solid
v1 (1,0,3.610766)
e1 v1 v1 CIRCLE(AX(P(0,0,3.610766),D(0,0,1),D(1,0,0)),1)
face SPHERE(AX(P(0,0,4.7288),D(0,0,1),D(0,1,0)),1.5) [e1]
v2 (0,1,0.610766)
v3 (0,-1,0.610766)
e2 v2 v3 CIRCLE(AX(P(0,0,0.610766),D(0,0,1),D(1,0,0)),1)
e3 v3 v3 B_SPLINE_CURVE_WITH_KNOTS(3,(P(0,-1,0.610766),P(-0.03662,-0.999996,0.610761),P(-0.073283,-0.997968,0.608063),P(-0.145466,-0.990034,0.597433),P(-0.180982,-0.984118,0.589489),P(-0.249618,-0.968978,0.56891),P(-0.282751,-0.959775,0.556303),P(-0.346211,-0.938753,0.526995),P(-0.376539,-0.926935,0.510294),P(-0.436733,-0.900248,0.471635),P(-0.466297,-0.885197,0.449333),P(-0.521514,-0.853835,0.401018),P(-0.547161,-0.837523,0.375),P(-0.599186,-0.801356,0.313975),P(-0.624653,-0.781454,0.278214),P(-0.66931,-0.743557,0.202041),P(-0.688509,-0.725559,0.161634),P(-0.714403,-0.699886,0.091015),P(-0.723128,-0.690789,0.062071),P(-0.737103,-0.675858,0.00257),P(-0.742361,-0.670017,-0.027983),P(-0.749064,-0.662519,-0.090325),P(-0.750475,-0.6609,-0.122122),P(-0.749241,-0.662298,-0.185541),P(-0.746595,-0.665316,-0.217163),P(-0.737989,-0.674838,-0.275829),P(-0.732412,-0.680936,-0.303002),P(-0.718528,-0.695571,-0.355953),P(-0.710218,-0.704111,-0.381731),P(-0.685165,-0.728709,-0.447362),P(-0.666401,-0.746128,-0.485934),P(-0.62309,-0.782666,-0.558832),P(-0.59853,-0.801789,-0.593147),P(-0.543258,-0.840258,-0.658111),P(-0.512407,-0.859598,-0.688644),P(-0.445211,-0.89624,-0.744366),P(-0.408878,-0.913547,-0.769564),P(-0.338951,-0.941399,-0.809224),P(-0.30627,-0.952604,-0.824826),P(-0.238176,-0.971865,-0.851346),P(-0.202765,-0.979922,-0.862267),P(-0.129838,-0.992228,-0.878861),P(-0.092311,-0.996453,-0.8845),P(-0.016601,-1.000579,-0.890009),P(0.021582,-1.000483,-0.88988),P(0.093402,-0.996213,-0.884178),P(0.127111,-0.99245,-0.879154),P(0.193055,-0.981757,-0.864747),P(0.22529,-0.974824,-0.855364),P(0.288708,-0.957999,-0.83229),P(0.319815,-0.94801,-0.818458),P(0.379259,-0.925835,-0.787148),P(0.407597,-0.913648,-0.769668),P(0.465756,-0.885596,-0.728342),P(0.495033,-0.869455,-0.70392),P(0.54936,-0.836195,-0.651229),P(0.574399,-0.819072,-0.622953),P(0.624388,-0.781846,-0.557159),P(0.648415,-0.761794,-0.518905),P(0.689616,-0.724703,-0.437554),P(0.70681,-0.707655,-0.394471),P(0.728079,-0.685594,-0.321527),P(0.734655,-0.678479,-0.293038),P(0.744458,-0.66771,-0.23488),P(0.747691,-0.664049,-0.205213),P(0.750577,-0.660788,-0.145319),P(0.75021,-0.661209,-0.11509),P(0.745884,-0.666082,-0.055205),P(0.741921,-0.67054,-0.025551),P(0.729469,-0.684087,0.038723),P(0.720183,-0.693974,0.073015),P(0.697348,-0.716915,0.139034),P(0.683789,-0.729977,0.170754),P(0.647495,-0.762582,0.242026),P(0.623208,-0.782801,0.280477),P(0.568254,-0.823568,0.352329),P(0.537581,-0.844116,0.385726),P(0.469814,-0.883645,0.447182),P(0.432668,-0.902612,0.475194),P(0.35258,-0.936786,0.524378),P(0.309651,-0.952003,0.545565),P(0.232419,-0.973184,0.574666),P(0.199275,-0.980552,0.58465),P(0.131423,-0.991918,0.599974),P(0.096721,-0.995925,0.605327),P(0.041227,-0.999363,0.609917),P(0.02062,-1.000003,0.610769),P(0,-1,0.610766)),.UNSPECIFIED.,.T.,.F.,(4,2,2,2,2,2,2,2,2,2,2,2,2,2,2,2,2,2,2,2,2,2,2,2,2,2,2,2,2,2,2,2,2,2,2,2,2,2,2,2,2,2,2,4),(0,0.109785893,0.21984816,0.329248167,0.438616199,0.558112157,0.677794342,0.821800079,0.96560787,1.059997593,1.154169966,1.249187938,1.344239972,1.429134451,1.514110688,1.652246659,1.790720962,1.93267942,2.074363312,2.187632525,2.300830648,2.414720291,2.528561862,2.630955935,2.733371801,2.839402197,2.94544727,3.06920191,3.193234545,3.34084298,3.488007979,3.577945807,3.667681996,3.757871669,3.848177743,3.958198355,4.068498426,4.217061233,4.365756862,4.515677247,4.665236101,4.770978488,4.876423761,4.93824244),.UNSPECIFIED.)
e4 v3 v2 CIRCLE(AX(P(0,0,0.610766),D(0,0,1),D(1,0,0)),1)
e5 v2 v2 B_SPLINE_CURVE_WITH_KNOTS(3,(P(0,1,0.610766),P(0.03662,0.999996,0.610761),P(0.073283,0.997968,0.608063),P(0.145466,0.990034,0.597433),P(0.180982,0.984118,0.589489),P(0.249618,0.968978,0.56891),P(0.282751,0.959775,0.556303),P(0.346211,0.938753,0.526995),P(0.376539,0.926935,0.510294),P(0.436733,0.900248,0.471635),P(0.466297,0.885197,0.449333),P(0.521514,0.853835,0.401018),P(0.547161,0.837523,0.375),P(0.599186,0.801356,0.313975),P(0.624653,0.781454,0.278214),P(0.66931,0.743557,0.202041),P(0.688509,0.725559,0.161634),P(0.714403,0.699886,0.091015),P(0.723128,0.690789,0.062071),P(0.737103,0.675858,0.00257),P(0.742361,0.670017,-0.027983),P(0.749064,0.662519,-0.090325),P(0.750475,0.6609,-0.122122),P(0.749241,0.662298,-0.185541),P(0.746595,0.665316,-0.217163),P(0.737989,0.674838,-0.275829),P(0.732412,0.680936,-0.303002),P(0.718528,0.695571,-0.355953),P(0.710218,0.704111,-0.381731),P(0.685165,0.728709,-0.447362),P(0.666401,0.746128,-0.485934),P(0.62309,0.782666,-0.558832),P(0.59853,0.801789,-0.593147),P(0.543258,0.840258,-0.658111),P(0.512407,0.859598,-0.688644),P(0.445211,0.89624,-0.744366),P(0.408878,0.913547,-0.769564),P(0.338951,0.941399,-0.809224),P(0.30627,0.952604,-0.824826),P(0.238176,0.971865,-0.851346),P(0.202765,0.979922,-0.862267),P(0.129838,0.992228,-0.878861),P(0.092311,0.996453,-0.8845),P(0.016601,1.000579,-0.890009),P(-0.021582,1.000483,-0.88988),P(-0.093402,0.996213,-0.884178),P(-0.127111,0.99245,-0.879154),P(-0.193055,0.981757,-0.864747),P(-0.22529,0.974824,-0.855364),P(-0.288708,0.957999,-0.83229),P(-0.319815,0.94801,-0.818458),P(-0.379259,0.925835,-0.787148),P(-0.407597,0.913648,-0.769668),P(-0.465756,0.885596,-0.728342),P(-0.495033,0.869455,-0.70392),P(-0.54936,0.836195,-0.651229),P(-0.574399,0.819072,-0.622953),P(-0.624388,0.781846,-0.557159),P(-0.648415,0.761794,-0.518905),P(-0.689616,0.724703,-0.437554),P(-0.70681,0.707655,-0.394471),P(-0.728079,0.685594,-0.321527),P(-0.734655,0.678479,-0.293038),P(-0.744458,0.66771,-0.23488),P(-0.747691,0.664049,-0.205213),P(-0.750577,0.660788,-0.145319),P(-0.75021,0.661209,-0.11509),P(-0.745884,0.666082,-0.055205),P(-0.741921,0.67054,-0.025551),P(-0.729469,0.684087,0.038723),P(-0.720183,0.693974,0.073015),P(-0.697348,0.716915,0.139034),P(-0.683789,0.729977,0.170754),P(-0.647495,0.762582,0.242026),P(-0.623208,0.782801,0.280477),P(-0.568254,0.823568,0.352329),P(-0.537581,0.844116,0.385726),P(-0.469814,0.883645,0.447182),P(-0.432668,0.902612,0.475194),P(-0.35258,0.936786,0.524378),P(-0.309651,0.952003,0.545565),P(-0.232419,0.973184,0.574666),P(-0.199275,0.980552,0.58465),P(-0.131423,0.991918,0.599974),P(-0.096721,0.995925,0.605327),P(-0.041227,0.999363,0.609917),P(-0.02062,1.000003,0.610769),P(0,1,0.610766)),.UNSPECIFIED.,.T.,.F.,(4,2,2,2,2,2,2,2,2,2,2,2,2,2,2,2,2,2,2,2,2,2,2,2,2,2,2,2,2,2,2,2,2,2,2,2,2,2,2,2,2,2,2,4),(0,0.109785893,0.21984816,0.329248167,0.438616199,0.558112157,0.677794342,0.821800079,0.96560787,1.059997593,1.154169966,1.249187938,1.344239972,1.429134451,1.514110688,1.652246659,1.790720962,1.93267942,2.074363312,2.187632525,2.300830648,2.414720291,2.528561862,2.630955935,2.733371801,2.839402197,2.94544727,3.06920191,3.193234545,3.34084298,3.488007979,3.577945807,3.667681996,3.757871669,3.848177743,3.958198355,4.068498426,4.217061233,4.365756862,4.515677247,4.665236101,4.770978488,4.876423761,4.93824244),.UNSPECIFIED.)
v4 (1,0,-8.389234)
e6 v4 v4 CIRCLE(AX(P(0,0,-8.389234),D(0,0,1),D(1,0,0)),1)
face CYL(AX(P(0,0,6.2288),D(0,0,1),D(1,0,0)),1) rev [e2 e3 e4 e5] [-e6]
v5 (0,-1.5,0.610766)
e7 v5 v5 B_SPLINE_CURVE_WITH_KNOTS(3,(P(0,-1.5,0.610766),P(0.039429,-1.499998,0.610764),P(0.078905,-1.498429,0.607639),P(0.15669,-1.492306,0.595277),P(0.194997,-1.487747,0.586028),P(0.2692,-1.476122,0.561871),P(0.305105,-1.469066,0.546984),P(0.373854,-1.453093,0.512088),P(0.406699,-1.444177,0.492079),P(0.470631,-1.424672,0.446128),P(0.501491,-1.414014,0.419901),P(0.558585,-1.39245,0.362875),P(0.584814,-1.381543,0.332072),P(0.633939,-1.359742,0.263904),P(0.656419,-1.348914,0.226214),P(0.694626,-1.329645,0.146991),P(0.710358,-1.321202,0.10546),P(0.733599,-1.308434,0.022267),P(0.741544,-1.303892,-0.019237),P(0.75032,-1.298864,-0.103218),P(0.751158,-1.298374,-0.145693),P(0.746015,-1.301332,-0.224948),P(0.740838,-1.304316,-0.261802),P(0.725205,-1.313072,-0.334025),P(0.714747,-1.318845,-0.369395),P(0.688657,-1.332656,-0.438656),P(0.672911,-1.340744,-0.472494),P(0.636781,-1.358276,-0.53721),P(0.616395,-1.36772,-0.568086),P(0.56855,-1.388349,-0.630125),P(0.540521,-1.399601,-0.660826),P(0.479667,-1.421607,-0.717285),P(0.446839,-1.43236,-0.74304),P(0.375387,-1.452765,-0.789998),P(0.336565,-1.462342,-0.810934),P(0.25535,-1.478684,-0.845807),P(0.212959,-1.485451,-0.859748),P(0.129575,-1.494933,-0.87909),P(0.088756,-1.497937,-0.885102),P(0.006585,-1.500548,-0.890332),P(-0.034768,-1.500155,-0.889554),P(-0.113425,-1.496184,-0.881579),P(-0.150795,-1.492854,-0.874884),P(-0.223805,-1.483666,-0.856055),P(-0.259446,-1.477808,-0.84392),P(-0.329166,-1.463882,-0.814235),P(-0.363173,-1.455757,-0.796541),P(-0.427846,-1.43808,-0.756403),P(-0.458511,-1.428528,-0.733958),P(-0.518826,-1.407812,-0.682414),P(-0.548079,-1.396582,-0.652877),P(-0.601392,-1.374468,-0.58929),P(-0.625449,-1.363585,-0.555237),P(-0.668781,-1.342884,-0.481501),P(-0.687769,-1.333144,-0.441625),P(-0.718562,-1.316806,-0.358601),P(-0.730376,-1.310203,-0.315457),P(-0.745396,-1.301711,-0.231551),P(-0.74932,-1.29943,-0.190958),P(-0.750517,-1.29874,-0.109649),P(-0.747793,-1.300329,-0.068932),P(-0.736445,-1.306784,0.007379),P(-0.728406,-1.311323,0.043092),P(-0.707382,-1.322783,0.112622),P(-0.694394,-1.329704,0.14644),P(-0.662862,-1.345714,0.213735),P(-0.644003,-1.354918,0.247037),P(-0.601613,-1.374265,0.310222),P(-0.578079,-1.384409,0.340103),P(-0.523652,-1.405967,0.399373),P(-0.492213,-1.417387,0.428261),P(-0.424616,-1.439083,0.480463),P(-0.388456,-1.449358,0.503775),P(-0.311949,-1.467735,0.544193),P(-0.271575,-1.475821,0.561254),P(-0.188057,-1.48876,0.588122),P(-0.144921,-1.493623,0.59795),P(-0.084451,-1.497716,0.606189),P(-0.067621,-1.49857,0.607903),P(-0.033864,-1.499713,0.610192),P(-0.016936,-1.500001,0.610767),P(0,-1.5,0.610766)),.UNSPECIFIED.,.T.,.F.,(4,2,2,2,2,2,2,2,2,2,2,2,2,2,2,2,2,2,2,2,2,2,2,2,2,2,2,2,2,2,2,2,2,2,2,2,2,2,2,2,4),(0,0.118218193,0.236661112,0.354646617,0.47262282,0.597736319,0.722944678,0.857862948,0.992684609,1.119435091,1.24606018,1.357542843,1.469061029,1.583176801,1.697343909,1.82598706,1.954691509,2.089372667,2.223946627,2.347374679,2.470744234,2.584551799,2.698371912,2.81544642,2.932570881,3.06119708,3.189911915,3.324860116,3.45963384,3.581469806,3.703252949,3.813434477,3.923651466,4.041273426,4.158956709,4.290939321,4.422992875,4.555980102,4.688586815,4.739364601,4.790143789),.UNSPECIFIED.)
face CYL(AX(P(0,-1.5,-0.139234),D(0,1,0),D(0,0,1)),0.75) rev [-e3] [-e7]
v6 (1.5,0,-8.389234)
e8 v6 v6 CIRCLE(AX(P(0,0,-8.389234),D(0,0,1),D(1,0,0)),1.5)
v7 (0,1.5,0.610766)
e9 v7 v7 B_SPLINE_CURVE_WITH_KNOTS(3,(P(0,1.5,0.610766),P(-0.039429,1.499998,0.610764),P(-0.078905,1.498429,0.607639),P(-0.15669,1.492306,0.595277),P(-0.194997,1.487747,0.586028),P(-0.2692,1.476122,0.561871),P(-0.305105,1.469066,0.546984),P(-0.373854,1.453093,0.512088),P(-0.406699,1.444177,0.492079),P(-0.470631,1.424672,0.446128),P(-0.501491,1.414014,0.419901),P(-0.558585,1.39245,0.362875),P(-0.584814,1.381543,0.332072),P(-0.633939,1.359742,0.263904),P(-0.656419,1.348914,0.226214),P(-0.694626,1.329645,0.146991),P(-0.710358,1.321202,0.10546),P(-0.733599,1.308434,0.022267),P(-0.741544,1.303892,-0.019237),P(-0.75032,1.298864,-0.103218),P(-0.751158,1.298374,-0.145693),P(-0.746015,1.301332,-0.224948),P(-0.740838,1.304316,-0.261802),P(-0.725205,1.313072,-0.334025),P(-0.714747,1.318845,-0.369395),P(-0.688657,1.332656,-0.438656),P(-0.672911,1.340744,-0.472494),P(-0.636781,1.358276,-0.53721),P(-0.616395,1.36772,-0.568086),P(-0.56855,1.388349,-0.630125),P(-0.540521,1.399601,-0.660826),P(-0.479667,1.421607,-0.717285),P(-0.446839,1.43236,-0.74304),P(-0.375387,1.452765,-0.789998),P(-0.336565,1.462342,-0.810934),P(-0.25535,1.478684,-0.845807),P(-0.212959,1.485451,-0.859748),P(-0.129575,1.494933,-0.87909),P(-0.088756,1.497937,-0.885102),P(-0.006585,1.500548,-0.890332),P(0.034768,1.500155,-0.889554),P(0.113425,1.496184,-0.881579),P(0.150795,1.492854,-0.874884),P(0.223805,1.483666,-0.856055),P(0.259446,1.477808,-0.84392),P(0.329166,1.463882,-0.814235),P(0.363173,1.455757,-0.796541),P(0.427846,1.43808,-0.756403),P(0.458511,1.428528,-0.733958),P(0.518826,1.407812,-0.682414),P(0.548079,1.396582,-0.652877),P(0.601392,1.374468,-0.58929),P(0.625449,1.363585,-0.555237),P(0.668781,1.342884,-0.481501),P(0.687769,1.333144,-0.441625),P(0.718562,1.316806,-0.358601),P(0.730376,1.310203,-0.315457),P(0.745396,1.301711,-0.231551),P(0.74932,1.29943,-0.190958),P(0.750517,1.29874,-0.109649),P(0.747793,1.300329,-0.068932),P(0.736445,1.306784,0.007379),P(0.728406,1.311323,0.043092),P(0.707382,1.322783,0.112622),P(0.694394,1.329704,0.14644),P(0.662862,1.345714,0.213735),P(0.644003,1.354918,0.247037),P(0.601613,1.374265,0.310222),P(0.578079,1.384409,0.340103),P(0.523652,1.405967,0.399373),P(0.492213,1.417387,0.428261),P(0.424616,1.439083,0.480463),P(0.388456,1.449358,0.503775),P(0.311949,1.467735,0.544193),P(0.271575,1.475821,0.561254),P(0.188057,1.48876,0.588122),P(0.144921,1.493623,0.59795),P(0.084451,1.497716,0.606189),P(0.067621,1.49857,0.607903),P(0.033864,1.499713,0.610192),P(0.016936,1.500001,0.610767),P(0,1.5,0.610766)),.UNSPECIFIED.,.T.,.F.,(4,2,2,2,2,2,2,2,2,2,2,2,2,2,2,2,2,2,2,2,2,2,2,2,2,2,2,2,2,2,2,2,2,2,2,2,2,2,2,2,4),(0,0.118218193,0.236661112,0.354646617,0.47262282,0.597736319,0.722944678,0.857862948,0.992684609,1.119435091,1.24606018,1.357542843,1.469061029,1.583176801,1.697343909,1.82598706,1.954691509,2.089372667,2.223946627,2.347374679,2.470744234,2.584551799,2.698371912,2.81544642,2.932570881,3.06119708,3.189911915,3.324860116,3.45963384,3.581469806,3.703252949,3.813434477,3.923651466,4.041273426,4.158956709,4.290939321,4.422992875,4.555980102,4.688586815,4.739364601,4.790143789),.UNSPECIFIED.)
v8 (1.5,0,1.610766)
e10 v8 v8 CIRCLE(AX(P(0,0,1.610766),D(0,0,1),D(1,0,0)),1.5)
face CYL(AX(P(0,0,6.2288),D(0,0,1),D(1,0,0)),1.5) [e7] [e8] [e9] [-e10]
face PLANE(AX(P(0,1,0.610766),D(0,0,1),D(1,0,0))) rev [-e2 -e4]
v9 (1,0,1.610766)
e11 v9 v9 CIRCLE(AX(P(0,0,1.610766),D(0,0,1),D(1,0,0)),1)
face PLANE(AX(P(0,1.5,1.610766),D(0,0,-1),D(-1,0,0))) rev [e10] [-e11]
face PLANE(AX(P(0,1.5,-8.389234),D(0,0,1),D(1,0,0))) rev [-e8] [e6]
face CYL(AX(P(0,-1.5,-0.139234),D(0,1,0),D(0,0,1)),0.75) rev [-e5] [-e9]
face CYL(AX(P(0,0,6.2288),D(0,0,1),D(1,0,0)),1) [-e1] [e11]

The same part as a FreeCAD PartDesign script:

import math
import FreeCAD as App
import Part
import Sketcher
Q = App.Units.Quantity

doc = App.newDocument("Part")
body = doc.addObject("PartDesign::Body", "Body")

# Sketch on YZ plane
sketch1 = doc.addObject("Sketcher::SketchObject", "Sketch")
body.addObject(sketch1)
sketch1.AttachmentSupport = (doc.YZ_Plane, [""])
sketch1.MapMode = "FlatFace"
sketch1.addGeometry(Part.LineSegment(App.Vector(1.5, -8.4, 0), App.Vector(1.5, 1.6, 0)), False)
sketch1.addGeometry(Part.LineSegment(App.Vector(1.5, 1.6, 0), App.Vector(1, 1.6, 0)), False)
sketch1.addGeometry(Part.LineSegment(App.Vector(1, 1.6, 0), App.Vector(1, 3.6, 0)), False)
sketch1.addGeometry(Part.ArcOfCircle(Part.Circle(App.Vector(0, 4.7, 0), App.Vector(0, 0, 1), 1.5), math.radians(-48), math.radians(90)), False)
sketch1.addGeometry(Part.LineSegment(App.Vector(0, 6.2, 0), App.Vector(0, 0.6, 0)), False)
sketch1.addGeometry(Part.LineSegment(App.Vector(0, 0.6, 0), App.Vector(1, 0.6, 0)), False)
sketch1.addGeometry(Part.LineSegment(App.Vector(1, 0.6, 0), App.Vector(1, -8.4, 0)), False)
sketch1.addGeometry(Part.LineSegment(App.Vector(1, -8.4, 0), App.Vector(1.5, -8.4, 0)), False)
sketch1.addConstraint(Sketcher.Constraint("Coincident", 0, 2, 1, 1))
sketch1.addConstraint(Sketcher.Constraint("Coincident", 1, 2, 2, 1))
sketch1.addConstraint(Sketcher.Constraint("Coincident", 2, 2, 3, 1))
sketch1.addConstraint(Sketcher.Constraint("Coincident", 3, 2, 4, 1))
sketch1.addConstraint(Sketcher.Constraint("Coincident", 4, 2, 5, 1))
sketch1.addConstraint(Sketcher.Constraint("Coincident", 5, 2, 6, 1))
sketch1.addConstraint(Sketcher.Constraint("Coincident", 6, 2, 7, 1))
sketch1.addConstraint(Sketcher.Constraint("Coincident", 7, 2, 0, 1))
sketch1.addConstraint(Sketcher.Constraint("Vertical", 0))
sketch1.addConstraint(Sketcher.Constraint("Horizontal", 1))
sketch1.addConstraint(Sketcher.Constraint("Vertical", 2))
sketch1.addConstraint(Sketcher.Constraint("Vertical", 4))
sketch1.addConstraint(Sketcher.Constraint("Horizontal", 5))
sketch1.addConstraint(Sketcher.Constraint("Vertical", 6))
sketch1.addConstraint(Sketcher.Constraint("Horizontal", 7))
sketch1.addConstraint(Sketcher.Constraint("PointOnObject", 3, 3, -2))
sketch1.addConstraint(Sketcher.Constraint("PointOnObject", 3, 2, -2))
sketch1.addConstraint(Sketcher.Constraint("Vertical", 2, 2, 5, 2))
sketch1.addConstraint(Sketcher.Constraint("Radius", 3, Q("1.5 mm")))
sketch1.addConstraint(Sketcher.Constraint("DistanceX", 5, 1, 5, 2, Q("1 mm")))
sketch1.addConstraint(Sketcher.Constraint("DistanceY", 0, 1, 0, 2, Q("10 mm")))
sketch1.addConstraint(Sketcher.Constraint("DistanceY", 2, 1, 2, 2, Q("2 mm")))
sketch1.addConstraint(Sketcher.Constraint("DistanceY", 6, 2, 6, 1, Q("9 mm")))
sketch1.addConstraint(Sketcher.Constraint("DistanceX", 1, 2, 1, 1, Q("0.5 mm")))
sketch1.addConstraint(Sketcher.Constraint("DistanceY", -1, 1, 3, 3, Q("4.7288 mm")))
revolution = doc.addObject("PartDesign::Revolution", "Revolution")
body.addObject(revolution)
revolution.Profile = sketch1
revolution.ReferenceAxis = (sketch1, ["V_Axis"])
revolution.Angle = 360

# Sketch on XZ plane
sketch2 = doc.addObject("Sketcher::SketchObject", "Sketch001")
body.addObject(sketch2)
sketch2.AttachmentSupport = (doc.XZ_Plane, [""])
sketch2.MapMode = "FlatFace"
sketch2.addGeometry(Part.Circle(App.Vector(0, -0.1, 0), App.Vector(0, 0, 1), 0.8), False)
sketch2.addConstraint(Sketcher.Constraint("PointOnObject", 0, 3, -2))
sketch2.addConstraint(Sketcher.Constraint("Diameter", 0, Q("1.5 mm")))
sketch2.addConstraint(Sketcher.Constraint("DistanceY", 0, 3, -1, 1, Q("0.139234 mm")))
pocket1 = doc.addObject("PartDesign::Pocket", "Pocket")
body.addObject(pocket1)
pocket1.Profile = sketch2
pocket1.Type = "ThroughAll"
pocket1.Midplane = True

doc.recompute()
